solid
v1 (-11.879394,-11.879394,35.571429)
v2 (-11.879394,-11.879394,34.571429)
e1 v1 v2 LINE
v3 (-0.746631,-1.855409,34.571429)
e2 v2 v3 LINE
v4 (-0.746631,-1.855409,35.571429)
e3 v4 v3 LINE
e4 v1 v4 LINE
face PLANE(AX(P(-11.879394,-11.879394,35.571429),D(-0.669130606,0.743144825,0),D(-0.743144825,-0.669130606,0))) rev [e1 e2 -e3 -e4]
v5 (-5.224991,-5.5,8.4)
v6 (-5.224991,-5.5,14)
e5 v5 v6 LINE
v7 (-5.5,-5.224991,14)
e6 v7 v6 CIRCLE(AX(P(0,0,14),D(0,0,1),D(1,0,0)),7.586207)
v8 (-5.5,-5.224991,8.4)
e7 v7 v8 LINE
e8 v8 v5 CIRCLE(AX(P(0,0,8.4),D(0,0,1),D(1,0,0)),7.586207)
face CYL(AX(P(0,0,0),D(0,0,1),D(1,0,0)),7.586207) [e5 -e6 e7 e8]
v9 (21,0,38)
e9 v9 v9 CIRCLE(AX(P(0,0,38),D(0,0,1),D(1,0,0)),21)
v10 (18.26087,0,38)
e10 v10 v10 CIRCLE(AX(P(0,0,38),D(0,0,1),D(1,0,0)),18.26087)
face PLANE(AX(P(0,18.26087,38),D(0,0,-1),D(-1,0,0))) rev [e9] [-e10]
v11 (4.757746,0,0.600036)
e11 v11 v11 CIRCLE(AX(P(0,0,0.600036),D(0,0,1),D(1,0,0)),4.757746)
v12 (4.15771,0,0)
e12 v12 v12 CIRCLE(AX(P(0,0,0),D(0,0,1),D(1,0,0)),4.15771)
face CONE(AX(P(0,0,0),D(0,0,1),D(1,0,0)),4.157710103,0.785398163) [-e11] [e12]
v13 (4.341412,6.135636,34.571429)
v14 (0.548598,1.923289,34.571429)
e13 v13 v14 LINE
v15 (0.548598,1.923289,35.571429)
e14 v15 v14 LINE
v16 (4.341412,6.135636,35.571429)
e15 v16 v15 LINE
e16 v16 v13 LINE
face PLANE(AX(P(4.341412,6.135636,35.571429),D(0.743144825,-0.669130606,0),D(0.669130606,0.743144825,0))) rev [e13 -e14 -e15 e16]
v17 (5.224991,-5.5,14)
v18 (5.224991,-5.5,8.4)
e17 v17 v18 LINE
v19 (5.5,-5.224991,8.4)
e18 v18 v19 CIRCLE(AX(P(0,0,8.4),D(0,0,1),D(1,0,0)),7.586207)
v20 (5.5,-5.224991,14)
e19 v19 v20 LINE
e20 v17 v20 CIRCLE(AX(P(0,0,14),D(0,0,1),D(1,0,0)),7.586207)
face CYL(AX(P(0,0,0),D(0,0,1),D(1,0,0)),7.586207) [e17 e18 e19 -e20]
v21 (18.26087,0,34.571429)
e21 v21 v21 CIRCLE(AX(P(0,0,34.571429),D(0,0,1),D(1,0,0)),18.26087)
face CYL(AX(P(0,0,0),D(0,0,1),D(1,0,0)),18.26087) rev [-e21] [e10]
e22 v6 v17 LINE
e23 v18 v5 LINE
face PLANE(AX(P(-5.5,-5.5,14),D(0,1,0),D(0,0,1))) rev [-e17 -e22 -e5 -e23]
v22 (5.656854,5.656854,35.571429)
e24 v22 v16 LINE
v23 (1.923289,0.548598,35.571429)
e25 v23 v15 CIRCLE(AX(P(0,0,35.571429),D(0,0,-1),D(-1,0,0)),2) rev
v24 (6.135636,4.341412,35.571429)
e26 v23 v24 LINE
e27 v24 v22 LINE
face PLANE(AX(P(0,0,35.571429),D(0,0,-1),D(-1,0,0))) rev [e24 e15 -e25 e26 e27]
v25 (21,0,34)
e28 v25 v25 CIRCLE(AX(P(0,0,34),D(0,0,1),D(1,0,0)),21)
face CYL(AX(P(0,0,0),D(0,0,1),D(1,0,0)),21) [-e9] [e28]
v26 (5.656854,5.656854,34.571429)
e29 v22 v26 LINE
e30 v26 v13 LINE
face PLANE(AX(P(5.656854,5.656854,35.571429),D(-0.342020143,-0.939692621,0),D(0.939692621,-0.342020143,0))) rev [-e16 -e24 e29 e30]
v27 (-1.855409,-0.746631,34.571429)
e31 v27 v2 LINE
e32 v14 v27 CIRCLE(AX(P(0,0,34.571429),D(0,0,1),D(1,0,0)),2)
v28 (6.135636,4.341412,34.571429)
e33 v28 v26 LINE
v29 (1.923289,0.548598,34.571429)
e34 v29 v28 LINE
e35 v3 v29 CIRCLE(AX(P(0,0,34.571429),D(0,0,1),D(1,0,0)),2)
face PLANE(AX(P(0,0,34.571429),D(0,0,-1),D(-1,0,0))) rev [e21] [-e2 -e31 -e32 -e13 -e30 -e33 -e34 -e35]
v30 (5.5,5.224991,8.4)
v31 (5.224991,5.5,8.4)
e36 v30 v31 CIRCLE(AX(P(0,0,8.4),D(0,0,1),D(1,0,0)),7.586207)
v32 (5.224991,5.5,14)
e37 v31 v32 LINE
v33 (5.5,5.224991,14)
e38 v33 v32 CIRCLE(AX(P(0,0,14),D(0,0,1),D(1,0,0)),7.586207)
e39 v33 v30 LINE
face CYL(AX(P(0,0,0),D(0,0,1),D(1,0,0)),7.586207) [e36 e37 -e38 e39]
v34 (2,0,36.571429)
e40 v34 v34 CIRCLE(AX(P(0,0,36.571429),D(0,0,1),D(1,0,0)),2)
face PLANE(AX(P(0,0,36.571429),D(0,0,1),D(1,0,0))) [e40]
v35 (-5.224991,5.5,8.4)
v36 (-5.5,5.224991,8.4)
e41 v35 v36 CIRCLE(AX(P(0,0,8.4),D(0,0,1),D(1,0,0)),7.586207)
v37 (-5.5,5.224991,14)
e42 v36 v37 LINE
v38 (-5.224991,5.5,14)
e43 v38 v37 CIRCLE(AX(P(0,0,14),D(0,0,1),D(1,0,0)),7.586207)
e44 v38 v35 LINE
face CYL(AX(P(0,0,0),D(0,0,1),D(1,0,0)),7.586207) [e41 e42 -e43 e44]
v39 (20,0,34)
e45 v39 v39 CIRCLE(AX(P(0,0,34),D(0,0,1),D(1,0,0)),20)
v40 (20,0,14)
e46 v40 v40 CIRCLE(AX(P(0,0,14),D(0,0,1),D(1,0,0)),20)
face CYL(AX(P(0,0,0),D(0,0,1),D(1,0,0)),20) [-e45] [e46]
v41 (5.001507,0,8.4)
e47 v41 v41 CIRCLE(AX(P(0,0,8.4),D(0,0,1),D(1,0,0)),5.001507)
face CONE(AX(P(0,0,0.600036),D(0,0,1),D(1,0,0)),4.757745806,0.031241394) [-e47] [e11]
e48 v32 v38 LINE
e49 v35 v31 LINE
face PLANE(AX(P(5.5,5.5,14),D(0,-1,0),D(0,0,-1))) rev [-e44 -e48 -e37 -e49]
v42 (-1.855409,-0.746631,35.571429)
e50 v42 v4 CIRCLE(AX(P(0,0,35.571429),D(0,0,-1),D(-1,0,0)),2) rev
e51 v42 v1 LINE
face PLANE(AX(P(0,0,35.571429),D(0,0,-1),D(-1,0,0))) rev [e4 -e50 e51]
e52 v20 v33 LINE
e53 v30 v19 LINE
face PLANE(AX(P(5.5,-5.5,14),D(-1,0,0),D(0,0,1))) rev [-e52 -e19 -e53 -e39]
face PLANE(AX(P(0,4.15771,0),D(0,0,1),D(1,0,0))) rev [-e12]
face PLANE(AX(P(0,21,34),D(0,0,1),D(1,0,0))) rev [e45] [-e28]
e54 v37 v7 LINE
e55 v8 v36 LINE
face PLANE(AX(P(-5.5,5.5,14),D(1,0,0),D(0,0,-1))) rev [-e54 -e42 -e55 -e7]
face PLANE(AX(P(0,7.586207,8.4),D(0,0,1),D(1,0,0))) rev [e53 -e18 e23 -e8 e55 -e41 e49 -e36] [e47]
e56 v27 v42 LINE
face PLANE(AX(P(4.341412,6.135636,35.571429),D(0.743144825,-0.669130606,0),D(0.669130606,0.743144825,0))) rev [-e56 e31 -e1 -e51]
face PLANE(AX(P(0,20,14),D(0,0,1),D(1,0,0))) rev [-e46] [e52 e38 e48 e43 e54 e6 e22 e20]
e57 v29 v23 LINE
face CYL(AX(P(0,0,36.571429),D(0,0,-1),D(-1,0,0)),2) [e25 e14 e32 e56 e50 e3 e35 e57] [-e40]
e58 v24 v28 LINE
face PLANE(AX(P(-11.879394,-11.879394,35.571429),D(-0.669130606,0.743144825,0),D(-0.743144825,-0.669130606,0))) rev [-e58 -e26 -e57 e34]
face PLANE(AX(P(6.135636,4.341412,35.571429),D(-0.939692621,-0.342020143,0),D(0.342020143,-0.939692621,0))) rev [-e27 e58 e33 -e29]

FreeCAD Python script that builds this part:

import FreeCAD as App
import Part
import Sketcher
from FreeCAD import Vector
Q = App.Units.Quantity

doc = App.newDocument("Part")
body = doc.addObject("PartDesign::Body", "Body")

# Sketch on YZ plane
sketch1 = body.newObject("Sketcher::SketchObject", "Sketch")
sketch1.AttachmentSupport = (doc.getObject("YZ_Plane"), [""])
sketch1.MapMode = "FlatFace"
sketch1.addGeometry([
    Part.LineSegment(Vector(18.3, 34.6, 0), Vector(0, 34.6, 0)),  # 0
    Part.LineSegment(Vector(0, 34.6, 0), Vector(0, 0, 0)),  # 1
    Part.LineSegment(Vector(0, 0, 0), Vector(4.2, 0, 0)),  # 2
    Part.LineSegment(Vector(4.2, 0, 0), Vector(4.8, 0.6, 0)),  # 3
    Part.LineSegment(Vector(4.8, 0.6, 0), Vector(5, 8.4, 0)),  # 4
    Part.LineSegment(Vector(5, 8.4, 0), Vector(7.6, 8.4, 0)),  # 5
    Part.LineSegment(Vector(7.6, 8.4, 0), Vector(7.6, 14, 0)),  # 6
    Part.LineSegment(Vector(7.6, 14, 0), Vector(20, 14, 0)),  # 7
    Part.LineSegment(Vector(20, 14, 0), Vector(20, 34, 0)),  # 8
    Part.LineSegment(Vector(20, 34, 0), Vector(21, 34, 0)),  # 9
    Part.LineSegment(Vector(21, 34, 0), Vector(21, 38, 0)),  # 10
    Part.LineSegment(Vector(21, 38, 0), Vector(18.3, 38, 0)),  # 11
    Part.LineSegment(Vector(18.3, 38, 0), Vector(18.3, 34.6, 0)),  # 12
], False)
sketch1.addConstraint([
    Sketcher.Constraint("Coincident", 0, 2, 1, 1),
    Sketcher.Constraint("Coincident", 1, 2, 2, 1),
    Sketcher.Constraint("Coincident", 2, 2, 3, 1),
    Sketcher.Constraint("Coincident", 3, 2, 4, 1),
    Sketcher.Constraint("Coincident", 4, 2, 5, 1),
    Sketcher.Constraint("Coincident", 5, 2, 6, 1),
    Sketcher.Constraint("Coincident", 6, 2, 7, 1),
    Sketcher.Constraint("Coincident", 7, 2, 8, 1),
    Sketcher.Constraint("Coincident", 8, 2, 9, 1),
    Sketcher.Constraint("Coincident", 9, 2, 10, 1),
    Sketcher.Constraint("Coincident", 10, 2, 11, 1),
    Sketcher.Constraint("Coincident", 11, 2, 12, 1),
    Sketcher.Constraint("Coincident", 12, 2, 0, 1),
    Sketcher.Constraint("Horizontal", 0),
    Sketcher.Constraint("Vertical", 1),
    Sketcher.Constraint("Horizontal", 2),
    Sketcher.Constraint("Horizontal", 5),
    Sketcher.Constraint("Vertical", 6),
    Sketcher.Constraint("Horizontal", 7),
    Sketcher.Constraint("Vertical", 8),
    Sketcher.Constraint("Horizontal", 9),
    Sketcher.Constraint("Vertical", 10),
    Sketcher.Constraint("Horizontal", 11),
    Sketcher.Constraint("Vertical", 12),
    Sketcher.Constraint("Coincident", 1, 2, -1, 1),
    Sketcher.Constraint("DistanceX", 9, 1, 9, 2, 1.0),
    Sketcher.Constraint("DistanceY", 8, 1, 8, 2, 20.0),
    Sketcher.Constraint("DistanceY", 10, 1, 10, 2, 4.0),
    Sketcher.Constraint("Angle", 3, Q("45 deg")),
    Sketcher.Constraint("DistanceY", 6, 1, 6, 2, 5.6),
    Sketcher.Constraint("DistanceY", -1, 1, 6, 2, 14.0),
    Sketcher.Constraint("DistanceX", -1, 1, 7, 2, 20.0),
    Sketcher.Constraint("Angle", 4, Q("88.21 deg")),
    Sketcher.Constraint("DistanceX", 5, 1, 5, 2, 2.5847),
    Sketcher.Constraint("DistanceX", 0, 2, 0, 1, 18.26087),
    Sketcher.Constraint("DistanceX", 2, 1, 2, 2, 4.15771),
    Sketcher.Constraint("DistanceY", 1, 2, 1, 1, 34.571429),
    Sketcher.Constraint("Distance", 3, 0.848579),
])
revolution = body.newObject("PartDesign::Revolution", "Revolution")
revolution.Profile = sketch1
revolution.ReferenceAxis = (sketch1, ["V_Axis"])
revolution.Angle = 360

# Sketch on XY plane
sketch2 = body.newObject("Sketcher::SketchObject", "Sketch001")
sketch2.AttachmentSupport = (doc.getObject("XY_Plane"), [""])
sketch2.MapMode = "FlatFace"
sketch2.AttachmentOffset = App.Placement(Vector(0, 0, 34.571429), App.Rotation())
sketch2.addGeometry([
    Part.LineSegment(Vector(-11.9, -11.9, 0), Vector(6.1, 4.3, 0)),
    Part.LineSegment(Vector(6.1, 4.3, 0), Vector(5.7, 5.7, 0)),
    Part.LineSegment(Vector(5.7, 5.7, 0), Vector(4.3, 6.1, 0)),
    Part.LineSegment(Vector(4.3, 6.1, 0), Vector(-11.9, -11.9, 0)),
], False)
sketch2.addConstraint([
    Sketcher.Constraint("Coincident", 0, 2, 1, 1),
    Sketcher.Constraint("Coincident", 1, 2, 2, 1),
    Sketcher.Constraint("Coincident", 2, 2, 3, 1),
    Sketcher.Constraint("Coincident", 3, 2, 0, 1),
    Sketcher.Constraint("Equal", 1, 2),
    Sketcher.Constraint("Equal", 0, 3),
    Sketcher.Constraint("Angle", 0, Q("42 deg")),
    Sketcher.Constraint("Angle", 1, Q("110 deg")),
    Sketcher.Constraint("Angle", 2, Q("160 deg")),
    Sketcher.Constraint("DistanceY", -1, 1, 0, 2, 4.341412),
    Sketcher.Constraint("DistanceX", -1, 1, 2, 2, 4.341412),
    Sketcher.Constraint("DistanceX", 1, 2, 0, 2, 0.478782),
])
pad1 = body.newObject("PartDesign::Pad", "Pad")
pad1.Profile = sketch2
pad1.Length = 1

# Sketch on XY plane
sketch3 = body.newObject("Sketcher::SketchObject", "Sketch002")
sketch3.AttachmentSupport = (doc.getObject("XY_Plane"), [""])
sketch3.MapMode = "FlatFace"
sketch3.AttachmentOffset = App.Placement(Vector(0, 0, 34.571429), App.Rotation())
sketch3.addGeometry(Part.Circle(Vector(0, 0, 0), Vector(0, 0, 1), 2), False)
sketch3.addConstraint([
    Sketcher.Constraint("Coincident", 0, 3, -1, 1),
    Sketcher.Constraint("Diameter", 0, 4.0),
])
pad2 = body.newObject("PartDesign::Pad", "Pad001")
pad2.Profile = sketch3
pad2.Length = 2

# Sketch on XY plane
sketch4 = body.newObject("Sketcher::SketchObject", "Sketch003")
sketch4.AttachmentSupport = (doc.getObject("XY_Plane"), [""])
sketch4.MapMode = "FlatFace"
sketch4.addGeometry([
    Part.LineSegment(Vector(-20, 21, 0), Vector(-20, -24, 0)),  # 0
    Part.LineSegment(Vector(-20, -24, 0), Vector(17, -24, 0)),  # 1
    Part.LineSegment(Vector(17, -24, 0), Vector(17, 21, 0)),  # 2
    Part.LineSegment(Vector(17, 21, 0), Vector(-20, 21, 0)),  # 3
    Part.LineSegment(Vector(6, -6, 0), Vector(-6, -6, 0)),  # 4
    Part.LineSegment(Vector(-6, -6, 0), Vector(-6, 6, 0)),  # 5
    Part.LineSegment(Vector(-6, 6, 0), Vector(6, 6, 0)),  # 6
    Part.LineSegment(Vector(6, 6, 0), Vector(6, -6, 0)),  # 7
], False)
sketch4.addConstraint([
    Sketcher.Constraint("Coincident", 0, 2, 1, 1),
    Sketcher.Constraint("Coincident", 1, 2, 2, 1),
    Sketcher.Constraint("Coincident", 2, 2, 3, 1),
    Sketcher.Constraint("Coincident", 3, 2, 0, 1),
    Sketcher.Constraint("Coincident", 4, 2, 5, 1),
    Sketcher.Constraint("Coincident", 5, 2, 6, 1),
    Sketcher.Constraint("Coincident", 6, 2, 7, 1),
    Sketcher.Constraint("Coincident", 7, 2, 4, 1),
    Sketcher.Constraint("Vertical", 0),
    Sketcher.Constraint("Horizontal", 1),
    Sketcher.Constraint("Vertical", 2),
    Sketcher.Constraint("Horizontal", 3),
    Sketcher.Constraint("Horizontal", 4),
    Sketcher.Constraint("Vertical", 5),
    Sketcher.Constraint("Horizontal", 6),
    Sketcher.Constraint("Vertical", 7),
    Sketcher.Constraint("Symmetric", 4, 2, 6, 2, -1, 1),
    Sketcher.Constraint("Equal", 6, 5),
    Sketcher.Constraint("DistanceX", 4, 2, 4, 1, 11.0),
    Sketcher.Constraint("DistanceX", 1, 1, 1, 2, 36.891892),
    Sketcher.Constraint("DistanceY", 0, 2, 0, 1, 44.115479),
    Sketcher.Constraint("DistanceX", 0, 2, -1, 1, 19.60688),
    Sketcher.Constraint("DistanceY", 0, 2, -1, 1, 23.605651),
])
pocket1 = body.newObject("PartDesign::Pocket", "Pocket")
pocket1.Profile = sketch4
pocket1.Length = 14
pocket1.Reversed = True

doc.recompute()
